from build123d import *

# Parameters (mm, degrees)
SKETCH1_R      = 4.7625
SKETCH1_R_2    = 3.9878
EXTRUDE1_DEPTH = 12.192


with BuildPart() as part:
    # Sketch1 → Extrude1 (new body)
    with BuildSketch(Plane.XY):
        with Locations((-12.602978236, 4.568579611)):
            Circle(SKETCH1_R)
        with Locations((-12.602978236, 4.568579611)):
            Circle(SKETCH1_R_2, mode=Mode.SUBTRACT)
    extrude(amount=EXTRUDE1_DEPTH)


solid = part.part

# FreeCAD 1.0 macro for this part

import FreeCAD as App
import Part
import Sketcher
from FreeCAD import Vector
Q = App.Units.Quantity

doc = App.newDocument("Part")
body = doc.addObject("PartDesign::Body", "Body")

sketch1 = body.newObject("Sketcher::SketchObject", "Sketch")
sketch1.AttachmentSupport = (doc.getObject("XY_Plane"), [""])
sketch1.MapMode = "FlatFace"
sketch1.addGeometry(Part.Circle(Vector(-12.602978, 4.56858, 0), Vector(0, 0, 1), 4.7625), False)
sketch1.addGeometry(Part.Circle(Vector(-12.602978, 4.56858, 0), Vector(0, 0, 1), 3.9878), False)
sketch1.addConstraint(Sketcher.Constraint("Coincident", 1, 3, 0, 3))
sketch1.addConstraint(Sketcher.Constraint("Diameter", 0, Q("0.375 in")))
sketch1.addConstraint(Sketcher.Constraint("Diameter", 1, Q("0.314 in")))
sketch1.addConstraint(Sketcher.Constraint("DistanceX", 0, 3, -1, 1, 12.602978))
sketch1.addConstraint(Sketcher.Constraint("DistanceY", -1, 1, 0, 3, 4.56858))
pad1 = body.newObject("PartDesign::Pad", "Pad")
pad1.Profile = sketch1
pad1.Length = Q("0.48 in")

doc.recompute()
